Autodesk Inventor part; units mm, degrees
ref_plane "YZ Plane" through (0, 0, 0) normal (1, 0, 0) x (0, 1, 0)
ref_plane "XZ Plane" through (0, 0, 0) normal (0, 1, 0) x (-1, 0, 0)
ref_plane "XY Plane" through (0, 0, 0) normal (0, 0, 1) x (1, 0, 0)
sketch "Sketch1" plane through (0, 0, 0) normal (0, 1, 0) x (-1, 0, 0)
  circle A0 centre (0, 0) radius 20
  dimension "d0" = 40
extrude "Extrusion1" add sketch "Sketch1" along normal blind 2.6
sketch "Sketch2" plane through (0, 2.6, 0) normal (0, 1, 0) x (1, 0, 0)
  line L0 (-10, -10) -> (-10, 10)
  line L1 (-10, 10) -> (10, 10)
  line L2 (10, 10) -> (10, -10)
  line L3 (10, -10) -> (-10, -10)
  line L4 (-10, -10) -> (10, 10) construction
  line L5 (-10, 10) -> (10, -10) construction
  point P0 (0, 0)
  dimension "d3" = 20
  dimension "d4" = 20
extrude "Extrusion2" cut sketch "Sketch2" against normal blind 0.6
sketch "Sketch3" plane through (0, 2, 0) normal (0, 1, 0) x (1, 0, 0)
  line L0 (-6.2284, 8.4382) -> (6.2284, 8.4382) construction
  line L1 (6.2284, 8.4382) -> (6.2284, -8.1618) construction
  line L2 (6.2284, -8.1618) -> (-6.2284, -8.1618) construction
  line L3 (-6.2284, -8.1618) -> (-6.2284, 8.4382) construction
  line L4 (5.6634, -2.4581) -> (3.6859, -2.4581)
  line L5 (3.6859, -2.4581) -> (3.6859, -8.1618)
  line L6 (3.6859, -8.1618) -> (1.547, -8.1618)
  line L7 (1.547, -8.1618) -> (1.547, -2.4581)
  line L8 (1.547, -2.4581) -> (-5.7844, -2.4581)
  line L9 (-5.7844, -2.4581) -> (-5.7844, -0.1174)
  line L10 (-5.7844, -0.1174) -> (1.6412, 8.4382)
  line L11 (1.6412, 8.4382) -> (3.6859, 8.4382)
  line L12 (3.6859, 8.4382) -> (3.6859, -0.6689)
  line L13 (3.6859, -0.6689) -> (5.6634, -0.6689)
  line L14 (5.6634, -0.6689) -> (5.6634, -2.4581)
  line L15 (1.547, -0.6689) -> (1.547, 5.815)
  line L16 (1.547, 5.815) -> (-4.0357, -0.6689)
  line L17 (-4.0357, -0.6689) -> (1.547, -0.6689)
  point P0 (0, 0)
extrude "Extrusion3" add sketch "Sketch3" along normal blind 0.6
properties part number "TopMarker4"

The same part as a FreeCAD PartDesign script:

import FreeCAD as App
import Part
import Sketcher

V = App.Vector
Q = App.Units.Quantity

doc = App.newDocument("Part")
body = doc.addObject("PartDesign::Body", "Body")

# Sketch on XZ plane
sketch1 = body.newObject("Sketcher::SketchObject", "Sketch")
sketch1.AttachmentSupport = (doc.getObject("XZ_Plane"), [""])
sketch1.MapMode = "FlatFace"
sketch1.addGeometry(Part.Circle(V(0, 0, 0), V(0, 0, 1), 20), False)
sketch1.addConstraint([
    Sketcher.Constraint("Coincident", 0, 3, -1, 1),
    Sketcher.Constraint("Diameter", 0, Q("40 mm")),
])
pad1 = body.newObject("PartDesign::Pad", "Pad")
pad1.Profile = sketch1
pad1.Length = 2.6
pad1.Reversed = True

# Sketch on XZ plane
sketch2 = body.newObject("Sketcher::SketchObject", "Sketch001")
sketch2.AttachmentSupport = (doc.getObject("XZ_Plane"), [""])
sketch2.MapMode = "FlatFace"
sketch2.AttachmentOffset = App.Placement(V(0, 0, -2.6), App.Rotation())
sketch2.addGeometry([
    Part.LineSegment(V(-10, -10, 0), V(-10, 10, 0)),
    Part.LineSegment(V(-10, 10, 0), V(10, 10, 0)),
    Part.LineSegment(V(10, 10, 0), V(10, -10, 0)),
    Part.LineSegment(V(10, -10, 0), V(-10, -10, 0)),
], False)
sketch2.addConstraint([
    Sketcher.Constraint("Coincident", 0, 2, 1, 1),
    Sketcher.Constraint("Coincident", 1, 2, 2, 1),
    Sketcher.Constraint("Coincident", 2, 2, 3, 1),
    Sketcher.Constraint("Coincident", 3, 2, 0, 1),
    Sketcher.Constraint("Vertical", 0),
    Sketcher.Constraint("Horizontal", 1),
    Sketcher.Constraint("Vertical", 2),
    Sketcher.Constraint("Horizontal", 3),
    Sketcher.Constraint("Symmetric", 0, 2, 2, 2, -1, 1),
    Sketcher.Constraint("Equal", 3, 0),
    Sketcher.Constraint("DistanceX", 1, 1, 1, 2, Q("20 mm")),
])
pocket1 = body.newObject("PartDesign::Pocket", "Pocket")
pocket1.Profile = sketch2
pocket1.Length = 0.6
pocket1.Reversed = True

# Sketch on XZ plane
sketch3 = body.newObject("Sketcher::SketchObject", "Sketch002")
sketch3.AttachmentSupport = (doc.getObject("XZ_Plane"), [""])
sketch3.MapMode = "FlatFace"
sketch3.AttachmentOffset = App.Placement(V(0, 0, -2), App.Rotation())
sketch3.addGeometry([
    Part.LineSegment(V(3.7, 2.5, 0), V(5.7, 2.5, 0)),  # 0
    Part.LineSegment(V(5.7, 2.5, 0), V(5.7, 0.7, 0)),  # 1
    Part.LineSegment(V(5.7, 0.7, 0), V(3.7, 0.7, 0)),  # 2
    Part.LineSegment(V(3.7, 0.7, 0), V(3.7, -8.4, 0)),  # 3
    Part.LineSegment(V(3.7, -8.4, 0), V(1.6, -8.4, 0)),  # 4
    Part.LineSegment(V(1.6, -8.4, 0), V(-5.8, 0.1, 0)),  # 5
    Part.LineSegment(V(-5.8, 0.1, 0), V(-5.8, 2.5, 0)),  # 6
    Part.LineSegment(V(-5.8, 2.5, 0), V(1.5, 2.5, 0)),  # 7
    Part.LineSegment(V(1.5, 2.5, 0), V(1.5, 8.2, 0)),  # 8
    Part.LineSegment(V(1.5, 8.2, 0), V(3.7, 8.2, 0)),  # 9
    Part.LineSegment(V(3.7, 8.2, 0), V(3.7, 2.5, 0)),  # 10
    Part.LineSegment(V(1.5, -5.8, 0), V(1.5, 0.7, 0)),  # 11
    Part.LineSegment(V(1.5, 0.7, 0), V(-4, 0.7, 0)),  # 12
    Part.LineSegment(V(-4, 0.7, 0), V(1.5, -5.8, 0)),  # 13
], False)
sketch3.addConstraint([
    Sketcher.Constraint("Coincident", 0, 2, 1, 1),
    Sketcher.Constraint("Coincident", 1, 2, 2, 1),
    Sketcher.Constraint("Coincident", 2, 2, 3, 1),
    Sketcher.Constraint("Coincident", 3, 2, 4, 1),
    Sketcher.Constraint("Coincident", 4, 2, 5, 1),
    Sketcher.Constraint("Coincident", 5, 2, 6, 1),
    Sketcher.Constraint("Coincident", 6, 2, 7, 1),
    Sketcher.Constraint("Coincident", 7, 2, 8, 1),
    Sketcher.Constraint("Coincident", 8, 2, 9, 1),
    Sketcher.Constraint("Coincident", 9, 2, 10, 1),
    Sketcher.Constraint("Coincident", 10, 2, 0, 1),
    Sketcher.Constraint("Coincident", 11, 2, 12, 1),
    Sketcher.Constraint("Coincident", 12, 2, 13, 1),
    Sketcher.Constraint("Coincident", 13, 2, 11, 1),
    Sketcher.Constraint("Horizontal", 0),
    Sketcher.Constraint("Vertical", 1),
    Sketcher.Constraint("Horizontal", 2),
    Sketcher.Constraint("Vertical", 3),
    Sketcher.Constraint("Horizontal", 4),
    Sketcher.Constraint("Vertical", 6),
    Sketcher.Constraint("Horizontal", 7),
    Sketcher.Constraint("Vertical", 8),
    Sketcher.Constraint("Horizontal", 9),
    Sketcher.Constraint("Vertical", 10),
    Sketcher.Constraint("Vertical", 11),
    Sketcher.Constraint("Horizontal", 12),
    Sketcher.Constraint("Horizontal", 0, 2, 6, 2),
    Sketcher.Constraint("Horizontal", 2, 2, 11, 2),
    Sketcher.Constraint("Vertical", 3, 2, 9, 2),
    Sketcher.Constraint("Vertical", 8, 2, 11, 2),
    Sketcher.Constraint("DistanceX", 9, 1, 9, 2, Q("2.139 mm")),
    Sketcher.Constraint("DistanceY", 3, 2, 3, 1, Q("9.107 mm")),
    Sketcher.Constraint("DistanceY", 11, 1, 11, 2, Q("6.484 mm")),
    Sketcher.Constraint("DistanceX", 0, 1, 0, 2, Q("1.9775 mm")),
    Sketcher.Constraint("DistanceX", 4, 2, 4, 1, Q("2.0447 mm")),
    Sketcher.Constraint("DistanceX", 7, 1, 7, 2, Q("7.3314 mm")),
    Sketcher.Constraint("DistanceX", 12, 2, 12, 1, Q("5.5827 mm")),
    Sketcher.Constraint("DistanceY", 1, 2, 1, 1, Q("1.7892 mm")),
    Sketcher.Constraint("DistanceY", 6, 1, 6, 2, Q("2.3407 mm")),
    Sketcher.Constraint("DistanceY", 8, 1, 8, 2, Q("5.7037 mm")),
    Sketcher.Constraint("DistanceY", -1, 1, 0, 2, Q("2.458 mm")),
    Sketcher.Constraint("DistanceX", -1, 1, 2, 2, Q("3.686 mm")),
])
pad2 = body.newObject("PartDesign::Pad", "Pad001")
pad2.Profile = sketch3
pad2.Length = 0.6
pad2.Reversed = True

doc.recompute()
